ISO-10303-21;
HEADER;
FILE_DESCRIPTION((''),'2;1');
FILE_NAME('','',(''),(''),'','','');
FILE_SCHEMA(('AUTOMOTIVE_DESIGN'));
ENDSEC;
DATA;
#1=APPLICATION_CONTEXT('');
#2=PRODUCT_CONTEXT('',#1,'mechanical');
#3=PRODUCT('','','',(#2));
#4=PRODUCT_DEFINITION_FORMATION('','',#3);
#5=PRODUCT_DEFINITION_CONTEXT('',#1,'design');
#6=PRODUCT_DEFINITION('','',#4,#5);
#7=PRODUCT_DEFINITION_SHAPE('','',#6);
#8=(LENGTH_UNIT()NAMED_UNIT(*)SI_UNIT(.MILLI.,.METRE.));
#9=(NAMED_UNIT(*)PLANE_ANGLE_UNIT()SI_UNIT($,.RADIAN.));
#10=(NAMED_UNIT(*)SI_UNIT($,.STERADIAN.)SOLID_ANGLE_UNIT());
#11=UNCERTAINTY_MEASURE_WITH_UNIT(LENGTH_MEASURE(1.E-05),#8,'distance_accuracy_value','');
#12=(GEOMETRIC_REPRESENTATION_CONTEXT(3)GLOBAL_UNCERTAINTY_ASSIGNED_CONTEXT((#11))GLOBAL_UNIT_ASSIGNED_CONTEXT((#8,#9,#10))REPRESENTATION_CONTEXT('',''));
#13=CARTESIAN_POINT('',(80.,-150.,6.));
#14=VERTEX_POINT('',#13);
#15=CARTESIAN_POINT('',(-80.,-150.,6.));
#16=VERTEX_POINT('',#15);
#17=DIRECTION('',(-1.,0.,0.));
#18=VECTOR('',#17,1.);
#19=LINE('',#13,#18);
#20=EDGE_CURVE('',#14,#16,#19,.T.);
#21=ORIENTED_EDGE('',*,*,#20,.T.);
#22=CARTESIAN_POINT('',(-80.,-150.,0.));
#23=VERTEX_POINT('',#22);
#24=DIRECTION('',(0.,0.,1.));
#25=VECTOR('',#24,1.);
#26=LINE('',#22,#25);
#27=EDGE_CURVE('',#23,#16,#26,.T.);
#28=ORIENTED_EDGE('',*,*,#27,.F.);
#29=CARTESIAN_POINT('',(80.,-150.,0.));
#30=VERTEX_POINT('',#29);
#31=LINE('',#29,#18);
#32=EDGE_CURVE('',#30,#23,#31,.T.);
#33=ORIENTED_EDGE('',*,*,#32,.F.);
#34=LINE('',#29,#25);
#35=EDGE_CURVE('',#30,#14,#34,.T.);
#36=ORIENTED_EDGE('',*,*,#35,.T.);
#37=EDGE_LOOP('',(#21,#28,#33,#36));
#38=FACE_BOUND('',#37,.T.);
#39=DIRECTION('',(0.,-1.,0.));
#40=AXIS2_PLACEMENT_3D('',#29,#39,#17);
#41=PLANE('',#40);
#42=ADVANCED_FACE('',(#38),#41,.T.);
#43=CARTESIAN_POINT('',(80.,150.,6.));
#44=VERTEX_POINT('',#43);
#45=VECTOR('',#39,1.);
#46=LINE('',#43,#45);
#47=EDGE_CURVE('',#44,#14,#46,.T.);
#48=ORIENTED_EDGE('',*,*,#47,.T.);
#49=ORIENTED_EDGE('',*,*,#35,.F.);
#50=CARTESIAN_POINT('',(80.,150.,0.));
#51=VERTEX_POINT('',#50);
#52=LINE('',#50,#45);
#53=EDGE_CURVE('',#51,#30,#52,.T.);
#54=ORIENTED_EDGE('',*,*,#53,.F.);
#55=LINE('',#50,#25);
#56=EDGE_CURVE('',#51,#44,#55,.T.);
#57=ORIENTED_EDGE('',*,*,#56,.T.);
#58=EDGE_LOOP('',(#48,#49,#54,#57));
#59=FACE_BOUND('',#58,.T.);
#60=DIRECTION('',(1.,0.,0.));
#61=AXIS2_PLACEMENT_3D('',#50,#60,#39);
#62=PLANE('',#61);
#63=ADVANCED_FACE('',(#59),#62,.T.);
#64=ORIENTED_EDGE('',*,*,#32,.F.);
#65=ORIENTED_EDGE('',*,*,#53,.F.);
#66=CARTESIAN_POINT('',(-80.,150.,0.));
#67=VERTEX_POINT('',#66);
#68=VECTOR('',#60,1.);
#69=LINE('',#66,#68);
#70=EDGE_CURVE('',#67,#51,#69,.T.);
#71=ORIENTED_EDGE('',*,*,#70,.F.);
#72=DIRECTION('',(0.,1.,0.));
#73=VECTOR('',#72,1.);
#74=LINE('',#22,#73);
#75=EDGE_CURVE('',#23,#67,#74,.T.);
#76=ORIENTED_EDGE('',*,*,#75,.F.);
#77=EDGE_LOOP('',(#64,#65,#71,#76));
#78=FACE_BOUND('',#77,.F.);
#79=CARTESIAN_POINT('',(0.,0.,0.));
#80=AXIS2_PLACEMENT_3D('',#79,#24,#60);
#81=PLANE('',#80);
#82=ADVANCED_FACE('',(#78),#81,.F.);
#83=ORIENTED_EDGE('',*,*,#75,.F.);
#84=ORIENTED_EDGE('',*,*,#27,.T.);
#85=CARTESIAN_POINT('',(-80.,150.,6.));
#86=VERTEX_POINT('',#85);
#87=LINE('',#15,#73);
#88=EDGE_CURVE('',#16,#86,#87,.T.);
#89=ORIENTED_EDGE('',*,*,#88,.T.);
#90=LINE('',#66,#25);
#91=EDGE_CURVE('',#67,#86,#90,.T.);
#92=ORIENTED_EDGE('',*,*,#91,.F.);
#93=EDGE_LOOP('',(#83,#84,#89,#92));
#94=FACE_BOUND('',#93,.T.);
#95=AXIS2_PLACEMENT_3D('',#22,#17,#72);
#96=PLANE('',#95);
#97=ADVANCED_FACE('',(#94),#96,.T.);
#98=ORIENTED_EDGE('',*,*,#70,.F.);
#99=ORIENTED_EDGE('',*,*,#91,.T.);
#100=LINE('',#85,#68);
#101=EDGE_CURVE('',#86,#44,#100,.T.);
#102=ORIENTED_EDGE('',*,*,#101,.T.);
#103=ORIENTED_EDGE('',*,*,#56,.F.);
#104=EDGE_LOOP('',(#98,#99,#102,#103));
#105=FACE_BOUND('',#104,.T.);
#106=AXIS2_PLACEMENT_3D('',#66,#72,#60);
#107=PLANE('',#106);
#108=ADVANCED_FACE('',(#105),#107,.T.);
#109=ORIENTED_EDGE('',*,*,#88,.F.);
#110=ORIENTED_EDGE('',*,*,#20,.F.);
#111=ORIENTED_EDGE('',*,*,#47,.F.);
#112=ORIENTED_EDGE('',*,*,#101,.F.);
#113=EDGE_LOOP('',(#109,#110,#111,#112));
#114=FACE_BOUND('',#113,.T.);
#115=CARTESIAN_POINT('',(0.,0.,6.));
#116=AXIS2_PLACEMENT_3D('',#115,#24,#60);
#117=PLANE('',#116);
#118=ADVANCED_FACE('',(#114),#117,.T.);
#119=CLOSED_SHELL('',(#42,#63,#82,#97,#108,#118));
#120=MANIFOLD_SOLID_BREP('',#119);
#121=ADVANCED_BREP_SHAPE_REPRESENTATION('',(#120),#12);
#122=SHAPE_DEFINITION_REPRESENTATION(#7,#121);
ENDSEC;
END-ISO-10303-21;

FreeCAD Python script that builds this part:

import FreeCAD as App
import Part
import Sketcher
from FreeCAD import Vector


def add_polygon(sketch, points):
    """Adds a closed chain of lines whose ends are joined by coincident constraints."""
    first, n = sketch.GeometryCount, len(points)
    for a, b in zip(points, points[1:] + points[:1]):
        sketch.addGeometry(Part.LineSegment(App.Vector(*a, 0), App.Vector(*b, 0)), False)
    for i in range(n):
        sketch.addConstraint(Sketcher.Constraint("Coincident", first + i, 2, first + (i + 1) % n, 1))

doc = App.newDocument("Part")
body = doc.addObject("PartDesign::Body", "Body")

# Sketch on XY plane
sketch1 = body.newObject("Sketcher::SketchObject", "Sketch")
sketch1.AttachmentSupport = (doc.getObject("XY_Plane"), [""])
sketch1.MapMode = "FlatFace"
add_polygon(sketch1, [(-80, -150), (80, -150), (80, 150), (-80, 150)])  # lines 0-3
sketch1.addConstraint(Sketcher.Constraint("Horizontal", 0))
sketch1.addConstraint(Sketcher.Constraint("Vertical", 1))
sketch1.addConstraint(Sketcher.Constraint("Horizontal", 2))
sketch1.addConstraint(Sketcher.Constraint("Vertical", 3))
sketch1.addConstraint(Sketcher.Constraint("Symmetric", 0, 2, 2, 2, -1, 1))
sketch1.addConstraint(Sketcher.Constraint("DistanceX", 0, 1, 0, 2, 160.0))
sketch1.addConstraint(Sketcher.Constraint("DistanceY", 1, 1, 1, 2, 300.0))
pad1 = body.newObject("PartDesign::Pad", "Pad")
pad1.Profile = sketch1
pad1.Length = 6

doc.recompute()
